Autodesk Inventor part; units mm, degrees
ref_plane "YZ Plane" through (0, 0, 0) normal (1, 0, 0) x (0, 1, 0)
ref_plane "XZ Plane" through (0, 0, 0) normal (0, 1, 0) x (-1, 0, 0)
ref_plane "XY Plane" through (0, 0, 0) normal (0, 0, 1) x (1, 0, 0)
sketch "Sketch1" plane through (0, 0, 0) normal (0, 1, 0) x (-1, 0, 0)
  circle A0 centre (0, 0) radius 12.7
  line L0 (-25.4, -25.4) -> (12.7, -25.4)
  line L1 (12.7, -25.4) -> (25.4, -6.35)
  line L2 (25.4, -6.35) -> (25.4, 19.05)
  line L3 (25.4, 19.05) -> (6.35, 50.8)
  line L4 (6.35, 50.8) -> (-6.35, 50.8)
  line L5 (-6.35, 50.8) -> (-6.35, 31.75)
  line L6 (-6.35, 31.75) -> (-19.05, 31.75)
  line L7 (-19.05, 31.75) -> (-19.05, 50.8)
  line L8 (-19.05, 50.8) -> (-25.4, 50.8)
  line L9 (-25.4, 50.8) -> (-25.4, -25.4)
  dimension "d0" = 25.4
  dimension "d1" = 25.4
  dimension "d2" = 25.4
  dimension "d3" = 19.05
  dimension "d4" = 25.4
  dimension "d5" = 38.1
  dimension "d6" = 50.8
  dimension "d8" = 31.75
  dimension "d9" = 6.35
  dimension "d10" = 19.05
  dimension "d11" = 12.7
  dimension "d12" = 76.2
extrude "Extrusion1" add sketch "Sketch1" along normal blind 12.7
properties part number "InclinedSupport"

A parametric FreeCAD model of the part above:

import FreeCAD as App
import Part
import Sketcher
from FreeCAD import Vector
Q = App.Units.Quantity


def add_polygon(sketch, points):
    """Adds a closed chain of lines whose ends are joined by coincident constraints."""
    first, n = sketch.GeometryCount, len(points)
    for a, b in zip(points, points[1:] + points[:1]):
        sketch.addGeometry(Part.LineSegment(App.Vector(*a, 0), App.Vector(*b, 0)), False)
    for i in range(n):
        sketch.addConstraint(Sketcher.Constraint("Coincident", first + i, 2, first + (i + 1) % n, 1))

doc = App.newDocument("Part")
params = doc.addObject("Spreadsheet::Sheet", "Params")
for row, (alias, value) in enumerate([
    ("sketch1_diameter", "1 in"),
    ("sketch1_height", "3 in"),
    ("sketch1_height2", "1 in"),
    ("sketch1_width", "1.5 in"),
    ("sketch1_width2", "0.5 in"),
    ("pad1_length", "0.5 in"),
], start=1):
    params.set(f"A{row}", alias)
    params.set(f"B{row}", "=" + value)
    params.setAlias(f"B{row}", alias)

body = doc.addObject("PartDesign::Body", "Body")

# Sketch on XZ plane
sketch1 = doc.addObject("Sketcher::SketchObject", "Sketch")
body.addObject(sketch1)
sketch1.AttachmentSupport = (doc.XZ_Plane, [""])
sketch1.MapMode = "FlatFace"
add_polygon(sketch1, [(25, 51), (25, -25), (-13, -25), (-25, -6), (-25, 19), (-6, 51), (6, 51), (6, 32), (19, 32), (19, 51)])  # lines 0-9
sketch1.addGeometry(Part.Circle(Vector(0, 0, 0), Vector(0, 0, 1), 13), False)  # 10
sketch1.addConstraint([
    Sketcher.Constraint("Vertical", 0),
    Sketcher.Constraint("Horizontal", 1),
    Sketcher.Constraint("Vertical", 3),
    Sketcher.Constraint("Horizontal", 5),
    Sketcher.Constraint("Vertical", 6),
    Sketcher.Constraint("Horizontal", 7),
    Sketcher.Constraint("Vertical", 8),
    Sketcher.Constraint("Horizontal", 9),
    Sketcher.Constraint("Coincident", 10, 3, -1, 1),
    Sketcher.Constraint("Horizontal", 5, 2, 8, 2),
    Sketcher.Constraint("Equal", 5, 7),
    Sketcher.Constraint("Diameter", 10, Q("1 in")),
    Sketcher.Constraint("DistanceY", 0, 2, 0, 1, Q("3 in")),
    Sketcher.Constraint("DistanceY", 3, 1, 3, 2, Q("1 in")),
    Sketcher.Constraint("DistanceX", 1, 2, 1, 1, Q("1.5 in")),
    Sketcher.Constraint("DistanceX", 5, 1, 5, 2, Q("0.5 in")),
    Sketcher.Constraint("DistanceX", -1, 1, 0, 2, Q("1 in")),
    Sketcher.Constraint("DistanceY", 0, 2, -1, 1, Q("1 in")),
    Sketcher.Constraint("DistanceX", 2, 2, -1, 1, Q("1 in")),
    Sketcher.Constraint("DistanceX", 9, 1, 9, 2, Q("0.25 in")),
    Sketcher.Constraint("DistanceY", 6, 2, 6, 1, Q("0.75 in")),
    Sketcher.Constraint("DistanceY", 3, 2, 6, 2, Q("0.5 in")),
])
sketch1.setExpression("Constraints[21]", "Params.sketch1_diameter")
sketch1.setExpression("Constraints[22]", "Params.sketch1_height")
sketch1.setExpression("Constraints[23]", "Params.sketch1_height2")
sketch1.setExpression("Constraints[24]", "Params.sketch1_width")
sketch1.setExpression("Constraints[25]", "Params.sketch1_width2")
pad1 = doc.addObject("PartDesign::Pad", "Pad")
body.addObject(pad1)
pad1.Profile = sketch1
pad1.setExpression("Length", "Params.pad1_length")
pad1.Reversed = True

doc.recompute()
